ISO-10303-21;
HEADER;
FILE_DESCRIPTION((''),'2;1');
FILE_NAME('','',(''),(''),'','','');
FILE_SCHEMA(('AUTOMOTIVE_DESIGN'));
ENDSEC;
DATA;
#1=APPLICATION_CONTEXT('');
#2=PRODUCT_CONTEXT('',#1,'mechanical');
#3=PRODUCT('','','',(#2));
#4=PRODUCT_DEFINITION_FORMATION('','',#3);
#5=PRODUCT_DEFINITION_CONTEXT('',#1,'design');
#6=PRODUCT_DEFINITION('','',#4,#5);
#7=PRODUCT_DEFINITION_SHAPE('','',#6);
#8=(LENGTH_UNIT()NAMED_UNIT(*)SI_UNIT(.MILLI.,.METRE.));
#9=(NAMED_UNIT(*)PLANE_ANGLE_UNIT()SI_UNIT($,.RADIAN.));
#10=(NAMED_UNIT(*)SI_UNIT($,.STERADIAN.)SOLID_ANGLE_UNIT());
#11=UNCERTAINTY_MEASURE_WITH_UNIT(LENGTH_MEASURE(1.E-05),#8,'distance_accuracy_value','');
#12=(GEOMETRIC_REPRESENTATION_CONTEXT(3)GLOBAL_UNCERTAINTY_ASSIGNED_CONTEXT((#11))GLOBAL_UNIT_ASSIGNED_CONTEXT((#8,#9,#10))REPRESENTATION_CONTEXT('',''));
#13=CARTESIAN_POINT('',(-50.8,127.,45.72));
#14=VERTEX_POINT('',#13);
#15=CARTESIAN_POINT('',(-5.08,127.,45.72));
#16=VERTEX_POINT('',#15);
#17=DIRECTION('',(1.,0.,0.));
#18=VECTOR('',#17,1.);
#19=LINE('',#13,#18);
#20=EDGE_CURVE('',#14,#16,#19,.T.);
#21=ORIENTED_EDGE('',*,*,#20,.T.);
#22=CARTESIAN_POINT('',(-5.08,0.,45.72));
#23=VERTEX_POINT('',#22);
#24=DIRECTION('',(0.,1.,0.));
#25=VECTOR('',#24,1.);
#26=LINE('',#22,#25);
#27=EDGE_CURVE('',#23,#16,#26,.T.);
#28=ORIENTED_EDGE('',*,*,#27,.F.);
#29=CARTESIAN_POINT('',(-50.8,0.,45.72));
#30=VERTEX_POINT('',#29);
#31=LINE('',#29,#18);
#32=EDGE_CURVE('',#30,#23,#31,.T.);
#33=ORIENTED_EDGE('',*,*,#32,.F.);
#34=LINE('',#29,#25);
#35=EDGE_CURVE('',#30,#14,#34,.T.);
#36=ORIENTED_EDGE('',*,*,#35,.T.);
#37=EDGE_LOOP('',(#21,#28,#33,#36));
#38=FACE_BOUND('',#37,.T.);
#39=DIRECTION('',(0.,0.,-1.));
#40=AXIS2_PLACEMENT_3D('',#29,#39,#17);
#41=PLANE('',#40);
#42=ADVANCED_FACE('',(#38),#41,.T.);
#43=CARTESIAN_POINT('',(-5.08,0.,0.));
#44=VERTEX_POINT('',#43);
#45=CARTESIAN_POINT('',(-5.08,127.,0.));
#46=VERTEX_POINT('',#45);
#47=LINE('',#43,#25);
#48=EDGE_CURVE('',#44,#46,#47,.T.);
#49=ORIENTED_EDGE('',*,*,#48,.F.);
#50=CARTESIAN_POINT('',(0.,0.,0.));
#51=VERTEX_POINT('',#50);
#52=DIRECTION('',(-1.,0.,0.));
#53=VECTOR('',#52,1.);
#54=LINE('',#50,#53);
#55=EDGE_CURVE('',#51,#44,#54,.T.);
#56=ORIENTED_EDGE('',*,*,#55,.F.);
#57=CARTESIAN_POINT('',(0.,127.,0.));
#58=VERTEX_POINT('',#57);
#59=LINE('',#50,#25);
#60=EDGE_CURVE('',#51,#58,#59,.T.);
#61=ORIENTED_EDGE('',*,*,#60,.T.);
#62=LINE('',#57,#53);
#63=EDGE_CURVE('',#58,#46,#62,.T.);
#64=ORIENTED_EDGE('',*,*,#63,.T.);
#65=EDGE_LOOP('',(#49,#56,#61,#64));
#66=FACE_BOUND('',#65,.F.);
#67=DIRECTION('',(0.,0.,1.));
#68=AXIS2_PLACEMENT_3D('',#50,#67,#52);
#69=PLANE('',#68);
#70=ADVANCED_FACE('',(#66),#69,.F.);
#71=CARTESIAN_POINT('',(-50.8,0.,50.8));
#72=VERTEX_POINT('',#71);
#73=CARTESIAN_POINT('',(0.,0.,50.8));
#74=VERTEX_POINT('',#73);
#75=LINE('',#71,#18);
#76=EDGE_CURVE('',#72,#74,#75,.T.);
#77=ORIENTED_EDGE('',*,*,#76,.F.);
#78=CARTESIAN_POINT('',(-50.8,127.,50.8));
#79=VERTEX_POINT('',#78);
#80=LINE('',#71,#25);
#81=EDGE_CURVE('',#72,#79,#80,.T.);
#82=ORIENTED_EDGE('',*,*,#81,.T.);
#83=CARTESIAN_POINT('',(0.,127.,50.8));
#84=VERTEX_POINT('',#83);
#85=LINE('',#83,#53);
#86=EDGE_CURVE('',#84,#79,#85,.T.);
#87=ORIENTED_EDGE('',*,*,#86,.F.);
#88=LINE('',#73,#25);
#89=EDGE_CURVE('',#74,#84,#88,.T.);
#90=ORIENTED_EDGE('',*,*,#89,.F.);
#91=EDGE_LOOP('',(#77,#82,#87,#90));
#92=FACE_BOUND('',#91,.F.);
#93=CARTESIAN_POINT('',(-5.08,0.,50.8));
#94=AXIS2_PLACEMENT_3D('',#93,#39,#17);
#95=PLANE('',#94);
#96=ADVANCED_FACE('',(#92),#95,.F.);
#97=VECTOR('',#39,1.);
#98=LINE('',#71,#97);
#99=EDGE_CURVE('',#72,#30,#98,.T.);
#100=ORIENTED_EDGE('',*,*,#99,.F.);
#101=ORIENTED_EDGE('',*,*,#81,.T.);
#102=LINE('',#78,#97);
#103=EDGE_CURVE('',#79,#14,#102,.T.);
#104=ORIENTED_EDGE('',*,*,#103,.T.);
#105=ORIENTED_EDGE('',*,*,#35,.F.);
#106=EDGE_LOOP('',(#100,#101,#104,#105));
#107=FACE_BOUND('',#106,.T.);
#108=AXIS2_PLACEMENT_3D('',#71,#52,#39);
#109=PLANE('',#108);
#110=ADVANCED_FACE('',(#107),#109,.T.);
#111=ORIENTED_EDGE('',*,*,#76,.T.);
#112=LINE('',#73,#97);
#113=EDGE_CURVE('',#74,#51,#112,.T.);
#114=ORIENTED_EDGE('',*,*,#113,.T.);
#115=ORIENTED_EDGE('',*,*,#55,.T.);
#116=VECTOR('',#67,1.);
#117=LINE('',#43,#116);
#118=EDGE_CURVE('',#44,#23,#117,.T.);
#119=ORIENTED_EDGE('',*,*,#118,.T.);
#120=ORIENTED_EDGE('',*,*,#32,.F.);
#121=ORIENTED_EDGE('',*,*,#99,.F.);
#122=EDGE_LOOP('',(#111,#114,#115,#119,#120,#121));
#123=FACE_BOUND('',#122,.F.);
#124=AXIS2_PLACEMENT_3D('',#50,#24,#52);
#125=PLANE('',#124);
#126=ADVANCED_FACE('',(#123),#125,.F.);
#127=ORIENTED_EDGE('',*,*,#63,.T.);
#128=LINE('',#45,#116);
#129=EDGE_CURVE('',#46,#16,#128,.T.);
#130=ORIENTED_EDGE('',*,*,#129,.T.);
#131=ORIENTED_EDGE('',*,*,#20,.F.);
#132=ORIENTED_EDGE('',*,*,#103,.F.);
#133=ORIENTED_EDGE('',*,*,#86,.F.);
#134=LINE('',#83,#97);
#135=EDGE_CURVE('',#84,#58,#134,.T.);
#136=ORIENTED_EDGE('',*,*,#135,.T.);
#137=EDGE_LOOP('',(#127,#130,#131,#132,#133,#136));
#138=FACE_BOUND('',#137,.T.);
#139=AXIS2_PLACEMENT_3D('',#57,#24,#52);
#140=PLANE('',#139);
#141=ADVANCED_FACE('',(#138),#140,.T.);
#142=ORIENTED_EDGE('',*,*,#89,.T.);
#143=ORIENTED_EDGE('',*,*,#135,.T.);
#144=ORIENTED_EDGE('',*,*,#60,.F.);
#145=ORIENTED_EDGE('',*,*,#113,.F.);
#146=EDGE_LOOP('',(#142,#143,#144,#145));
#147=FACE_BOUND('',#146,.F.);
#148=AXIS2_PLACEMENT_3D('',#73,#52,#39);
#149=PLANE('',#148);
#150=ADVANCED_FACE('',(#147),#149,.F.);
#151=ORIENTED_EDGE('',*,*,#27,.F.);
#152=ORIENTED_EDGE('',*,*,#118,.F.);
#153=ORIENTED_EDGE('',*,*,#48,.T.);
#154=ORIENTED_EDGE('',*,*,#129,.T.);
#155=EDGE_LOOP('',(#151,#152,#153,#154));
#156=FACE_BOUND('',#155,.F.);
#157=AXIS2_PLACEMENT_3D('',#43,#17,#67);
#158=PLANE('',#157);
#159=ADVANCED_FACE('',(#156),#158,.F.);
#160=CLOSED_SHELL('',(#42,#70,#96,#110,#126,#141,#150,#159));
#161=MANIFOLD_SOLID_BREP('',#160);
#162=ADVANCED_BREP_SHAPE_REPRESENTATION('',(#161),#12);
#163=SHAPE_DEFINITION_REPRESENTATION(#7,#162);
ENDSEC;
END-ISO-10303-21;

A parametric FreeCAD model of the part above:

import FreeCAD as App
import Part
import Sketcher
from FreeCAD import Vector
Q = App.Units.Quantity

doc = App.newDocument("Part")
body = doc.addObject("PartDesign::Body", "Body")

# Sketch on XZ plane
sketch1 = body.newObject("Sketcher::SketchObject", "Sketch")
sketch1.AttachmentSupport = (doc.getObject("XZ_Plane"), [""])
sketch1.MapMode = "FlatFace"
sketch1.addGeometry([
    Part.LineSegment(Vector(0, 50.8, 0), Vector(0, 0, 0)),  # 0
    Part.LineSegment(Vector(0, 0, 0), Vector(-5.08, 0, 0)),  # 1
    Part.LineSegment(Vector(-5.08, 0, 0), Vector(-5.08, 45.72, 0)),  # 2
    Part.LineSegment(Vector(-5.08, 45.72, 0), Vector(-50.8, 45.72, 0)),  # 3
    Part.LineSegment(Vector(-50.8, 45.72, 0), Vector(-50.8, 50.8, 0)),  # 4
    Part.LineSegment(Vector(-50.8, 50.8, 0), Vector(0, 50.8, 0)),  # 5
], False)
sketch1.addConstraint([
    Sketcher.Constraint("Coincident", 0, 2, 1, 1),
    Sketcher.Constraint("Coincident", 1, 2, 2, 1),
    Sketcher.Constraint("Coincident", 2, 2, 3, 1),
    Sketcher.Constraint("Coincident", 3, 2, 4, 1),
    Sketcher.Constraint("Coincident", 4, 2, 5, 1),
    Sketcher.Constraint("Coincident", 5, 2, 0, 1),
    Sketcher.Constraint("Vertical", 0),
    Sketcher.Constraint("Horizontal", 1),
    Sketcher.Constraint("Vertical", 2),
    Sketcher.Constraint("Horizontal", 3),
    Sketcher.Constraint("Vertical", 4),
    Sketcher.Constraint("Horizontal", 5),
    Sketcher.Constraint("Coincident", 0, 2, -1, 1),
    Sketcher.Constraint("Equal", 5, 0),
    Sketcher.Constraint("Equal", 3, 2),
    Sketcher.Constraint("DistanceX", 5, 1, 5, 2, Q("2 in")),
    Sketcher.Constraint("DistanceX", 1, 2, 1, 1, Q("0.2 in")),
])
pad1 = body.newObject("PartDesign::Pad", "Pad")
pad1.Profile = sketch1
pad1.Length = Q("5 in")
pad1.Reversed = True

doc.recompute()
